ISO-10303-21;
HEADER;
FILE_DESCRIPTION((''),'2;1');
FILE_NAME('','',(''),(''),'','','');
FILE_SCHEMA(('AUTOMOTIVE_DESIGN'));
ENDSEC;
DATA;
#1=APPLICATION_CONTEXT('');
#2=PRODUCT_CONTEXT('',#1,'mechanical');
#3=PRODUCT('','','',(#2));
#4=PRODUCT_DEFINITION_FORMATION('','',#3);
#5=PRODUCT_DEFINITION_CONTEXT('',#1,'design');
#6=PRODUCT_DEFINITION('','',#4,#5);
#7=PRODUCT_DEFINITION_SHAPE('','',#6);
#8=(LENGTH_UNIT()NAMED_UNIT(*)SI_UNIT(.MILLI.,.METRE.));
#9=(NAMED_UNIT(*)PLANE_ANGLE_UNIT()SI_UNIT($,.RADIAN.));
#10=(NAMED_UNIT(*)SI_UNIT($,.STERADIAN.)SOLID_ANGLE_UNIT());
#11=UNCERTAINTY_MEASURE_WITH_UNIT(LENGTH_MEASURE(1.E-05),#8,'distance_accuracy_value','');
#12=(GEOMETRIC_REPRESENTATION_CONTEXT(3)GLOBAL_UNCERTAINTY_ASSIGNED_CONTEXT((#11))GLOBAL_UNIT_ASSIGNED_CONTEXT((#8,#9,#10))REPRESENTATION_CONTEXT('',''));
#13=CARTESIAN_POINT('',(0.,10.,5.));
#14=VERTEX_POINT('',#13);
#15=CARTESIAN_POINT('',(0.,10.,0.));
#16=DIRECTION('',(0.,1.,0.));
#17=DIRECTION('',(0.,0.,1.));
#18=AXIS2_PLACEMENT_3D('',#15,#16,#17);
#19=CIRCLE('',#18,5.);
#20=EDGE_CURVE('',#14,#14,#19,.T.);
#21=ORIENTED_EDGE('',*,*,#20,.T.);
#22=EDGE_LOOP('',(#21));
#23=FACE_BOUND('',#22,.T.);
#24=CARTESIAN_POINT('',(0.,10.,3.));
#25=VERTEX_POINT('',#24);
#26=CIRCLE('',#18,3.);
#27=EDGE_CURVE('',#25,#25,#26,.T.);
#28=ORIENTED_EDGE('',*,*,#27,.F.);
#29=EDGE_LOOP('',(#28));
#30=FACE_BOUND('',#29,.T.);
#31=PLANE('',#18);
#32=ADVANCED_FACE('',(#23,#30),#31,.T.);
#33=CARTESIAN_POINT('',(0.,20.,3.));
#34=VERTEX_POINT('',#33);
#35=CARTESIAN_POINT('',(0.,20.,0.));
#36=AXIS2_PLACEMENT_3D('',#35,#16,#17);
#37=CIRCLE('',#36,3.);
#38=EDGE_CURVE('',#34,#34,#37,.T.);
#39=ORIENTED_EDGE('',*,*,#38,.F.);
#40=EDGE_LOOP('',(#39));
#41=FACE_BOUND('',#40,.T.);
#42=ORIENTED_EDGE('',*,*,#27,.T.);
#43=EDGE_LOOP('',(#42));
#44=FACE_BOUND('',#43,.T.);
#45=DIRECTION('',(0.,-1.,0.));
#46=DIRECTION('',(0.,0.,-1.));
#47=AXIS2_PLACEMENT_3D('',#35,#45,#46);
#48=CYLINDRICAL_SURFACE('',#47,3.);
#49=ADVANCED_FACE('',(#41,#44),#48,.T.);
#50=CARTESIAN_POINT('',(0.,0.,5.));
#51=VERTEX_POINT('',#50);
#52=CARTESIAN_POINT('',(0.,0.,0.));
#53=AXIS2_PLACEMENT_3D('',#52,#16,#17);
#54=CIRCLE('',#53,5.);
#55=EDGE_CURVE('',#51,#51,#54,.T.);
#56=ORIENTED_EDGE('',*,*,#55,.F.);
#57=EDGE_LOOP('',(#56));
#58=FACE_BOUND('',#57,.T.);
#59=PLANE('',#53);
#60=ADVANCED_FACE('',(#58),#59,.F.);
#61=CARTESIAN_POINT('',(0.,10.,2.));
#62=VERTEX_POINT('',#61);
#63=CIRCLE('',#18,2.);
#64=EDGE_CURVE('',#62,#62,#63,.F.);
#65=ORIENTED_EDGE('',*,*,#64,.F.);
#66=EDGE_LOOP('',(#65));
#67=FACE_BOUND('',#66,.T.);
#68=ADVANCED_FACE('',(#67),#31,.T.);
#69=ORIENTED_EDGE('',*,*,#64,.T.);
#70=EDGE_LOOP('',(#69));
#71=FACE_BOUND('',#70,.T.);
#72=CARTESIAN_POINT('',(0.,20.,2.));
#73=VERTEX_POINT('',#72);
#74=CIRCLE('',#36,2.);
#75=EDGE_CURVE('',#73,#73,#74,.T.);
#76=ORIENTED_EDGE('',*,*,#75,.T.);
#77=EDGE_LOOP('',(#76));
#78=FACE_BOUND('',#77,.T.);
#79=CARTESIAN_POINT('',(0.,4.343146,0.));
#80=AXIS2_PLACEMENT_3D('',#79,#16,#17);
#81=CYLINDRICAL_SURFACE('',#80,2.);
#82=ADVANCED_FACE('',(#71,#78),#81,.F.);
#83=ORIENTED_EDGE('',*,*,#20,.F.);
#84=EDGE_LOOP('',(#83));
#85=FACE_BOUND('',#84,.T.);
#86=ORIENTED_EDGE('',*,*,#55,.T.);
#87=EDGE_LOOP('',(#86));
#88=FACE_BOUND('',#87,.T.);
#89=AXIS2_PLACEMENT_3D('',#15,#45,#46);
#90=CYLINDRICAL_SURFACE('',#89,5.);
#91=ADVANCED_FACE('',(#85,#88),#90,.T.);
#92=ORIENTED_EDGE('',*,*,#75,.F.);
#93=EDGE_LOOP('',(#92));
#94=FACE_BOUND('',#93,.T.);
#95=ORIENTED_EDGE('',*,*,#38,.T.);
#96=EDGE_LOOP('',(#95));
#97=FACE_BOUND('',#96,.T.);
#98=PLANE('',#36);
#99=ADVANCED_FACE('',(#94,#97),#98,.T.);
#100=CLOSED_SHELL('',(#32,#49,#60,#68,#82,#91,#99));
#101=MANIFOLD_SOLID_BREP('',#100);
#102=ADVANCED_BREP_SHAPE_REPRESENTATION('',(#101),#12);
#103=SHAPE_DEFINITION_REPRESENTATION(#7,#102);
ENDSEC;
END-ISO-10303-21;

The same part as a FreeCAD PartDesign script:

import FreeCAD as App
import Part
import Sketcher
Q = App.Units.Quantity

doc = App.newDocument("Part")
params = doc.addObject("Spreadsheet::Sheet", "Params")
for row, (alias, value) in enumerate([
    ("sketch1_diameter", "10 mm"),
    ("pad1_length", "10 mm"),
    ("sketch2_diameter", "6 mm"),
    ("pad2_length", "10 mm"),
    ("sketch3_diameter", "4 mm"),
    ("pocket1_length", "10 mm"),
], start=1):
    params.set(f"A{row}", alias)
    params.set(f"B{row}", "=" + value)
    params.setAlias(f"B{row}", alias)

body = doc.addObject("PartDesign::Body", "Body")

sketch1 = body.newObject("Sketcher::SketchObject", "Sketch")
sketch1.AttachmentSupport = (doc.getObject("XZ_Plane"), [""])
sketch1.MapMode = "FlatFace"
sketch1.addGeometry(Part.Circle(App.Vector(0, 0, 0), App.Vector(0, 0, 1), 5), False)
sketch1.addConstraint([
    Sketcher.Constraint("Coincident", 0, 3, -1, 1),
    Sketcher.Constraint("Diameter", 0, Q("10 mm")),
])
sketch1.setExpression("Constraints[1]", "Params.sketch1_diameter")
pad1 = body.newObject("PartDesign::Pad", "Pad")
pad1.Profile = sketch1
pad1.setExpression("Length", "Params.pad1_length")
pad1.Reversed = True

sketch2 = body.newObject("Sketcher::SketchObject", "Sketch001")
sketch2.AttachmentSupport = (doc.getObject("XZ_Plane"), [""])
sketch2.MapMode = "FlatFace"
sketch2.AttachmentOffset = App.Placement(App.Vector(0, 0, -10), App.Rotation())
sketch2.addGeometry(Part.Circle(App.Vector(0, 0, 0), App.Vector(0, 0, 1), 3), False)
sketch2.addConstraint([
    Sketcher.Constraint("Coincident", 0, 3, -1, 1),
    Sketcher.Constraint("Diameter", 0, Q("6 mm")),
])
sketch2.setExpression("Constraints[1]", "Params.sketch2_diameter")
pad2 = body.newObject("PartDesign::Pad", "Pad001")
pad2.Profile = sketch2
pad2.setExpression("Length", "Params.pad2_length")
pad2.Reversed = True

sketch3 = body.newObject("Sketcher::SketchObject", "Sketch002")
sketch3.AttachmentSupport = (doc.getObject("XZ_Plane"), [""])
sketch3.MapMode = "FlatFace"
sketch3.AttachmentOffset = App.Placement(App.Vector(0, 0, -20), App.Rotation())
sketch3.addGeometry(Part.Circle(App.Vector(0, 0, 0), App.Vector(0, 0, 1), 2), False)
sketch3.addConstraint([
    Sketcher.Constraint("Coincident", 0, 3, -1, 1),
    Sketcher.Constraint("Diameter", 0, Q("4 mm")),
])
sketch3.setExpression("Constraints[1]", "Params.sketch3_diameter")
pocket1 = body.newObject("PartDesign::Pocket", "Pocket")
pocket1.Profile = sketch3
pocket1.setExpression("Length", "Params.pocket1_length")
pocket1.Reversed = True

doc.recompute()
